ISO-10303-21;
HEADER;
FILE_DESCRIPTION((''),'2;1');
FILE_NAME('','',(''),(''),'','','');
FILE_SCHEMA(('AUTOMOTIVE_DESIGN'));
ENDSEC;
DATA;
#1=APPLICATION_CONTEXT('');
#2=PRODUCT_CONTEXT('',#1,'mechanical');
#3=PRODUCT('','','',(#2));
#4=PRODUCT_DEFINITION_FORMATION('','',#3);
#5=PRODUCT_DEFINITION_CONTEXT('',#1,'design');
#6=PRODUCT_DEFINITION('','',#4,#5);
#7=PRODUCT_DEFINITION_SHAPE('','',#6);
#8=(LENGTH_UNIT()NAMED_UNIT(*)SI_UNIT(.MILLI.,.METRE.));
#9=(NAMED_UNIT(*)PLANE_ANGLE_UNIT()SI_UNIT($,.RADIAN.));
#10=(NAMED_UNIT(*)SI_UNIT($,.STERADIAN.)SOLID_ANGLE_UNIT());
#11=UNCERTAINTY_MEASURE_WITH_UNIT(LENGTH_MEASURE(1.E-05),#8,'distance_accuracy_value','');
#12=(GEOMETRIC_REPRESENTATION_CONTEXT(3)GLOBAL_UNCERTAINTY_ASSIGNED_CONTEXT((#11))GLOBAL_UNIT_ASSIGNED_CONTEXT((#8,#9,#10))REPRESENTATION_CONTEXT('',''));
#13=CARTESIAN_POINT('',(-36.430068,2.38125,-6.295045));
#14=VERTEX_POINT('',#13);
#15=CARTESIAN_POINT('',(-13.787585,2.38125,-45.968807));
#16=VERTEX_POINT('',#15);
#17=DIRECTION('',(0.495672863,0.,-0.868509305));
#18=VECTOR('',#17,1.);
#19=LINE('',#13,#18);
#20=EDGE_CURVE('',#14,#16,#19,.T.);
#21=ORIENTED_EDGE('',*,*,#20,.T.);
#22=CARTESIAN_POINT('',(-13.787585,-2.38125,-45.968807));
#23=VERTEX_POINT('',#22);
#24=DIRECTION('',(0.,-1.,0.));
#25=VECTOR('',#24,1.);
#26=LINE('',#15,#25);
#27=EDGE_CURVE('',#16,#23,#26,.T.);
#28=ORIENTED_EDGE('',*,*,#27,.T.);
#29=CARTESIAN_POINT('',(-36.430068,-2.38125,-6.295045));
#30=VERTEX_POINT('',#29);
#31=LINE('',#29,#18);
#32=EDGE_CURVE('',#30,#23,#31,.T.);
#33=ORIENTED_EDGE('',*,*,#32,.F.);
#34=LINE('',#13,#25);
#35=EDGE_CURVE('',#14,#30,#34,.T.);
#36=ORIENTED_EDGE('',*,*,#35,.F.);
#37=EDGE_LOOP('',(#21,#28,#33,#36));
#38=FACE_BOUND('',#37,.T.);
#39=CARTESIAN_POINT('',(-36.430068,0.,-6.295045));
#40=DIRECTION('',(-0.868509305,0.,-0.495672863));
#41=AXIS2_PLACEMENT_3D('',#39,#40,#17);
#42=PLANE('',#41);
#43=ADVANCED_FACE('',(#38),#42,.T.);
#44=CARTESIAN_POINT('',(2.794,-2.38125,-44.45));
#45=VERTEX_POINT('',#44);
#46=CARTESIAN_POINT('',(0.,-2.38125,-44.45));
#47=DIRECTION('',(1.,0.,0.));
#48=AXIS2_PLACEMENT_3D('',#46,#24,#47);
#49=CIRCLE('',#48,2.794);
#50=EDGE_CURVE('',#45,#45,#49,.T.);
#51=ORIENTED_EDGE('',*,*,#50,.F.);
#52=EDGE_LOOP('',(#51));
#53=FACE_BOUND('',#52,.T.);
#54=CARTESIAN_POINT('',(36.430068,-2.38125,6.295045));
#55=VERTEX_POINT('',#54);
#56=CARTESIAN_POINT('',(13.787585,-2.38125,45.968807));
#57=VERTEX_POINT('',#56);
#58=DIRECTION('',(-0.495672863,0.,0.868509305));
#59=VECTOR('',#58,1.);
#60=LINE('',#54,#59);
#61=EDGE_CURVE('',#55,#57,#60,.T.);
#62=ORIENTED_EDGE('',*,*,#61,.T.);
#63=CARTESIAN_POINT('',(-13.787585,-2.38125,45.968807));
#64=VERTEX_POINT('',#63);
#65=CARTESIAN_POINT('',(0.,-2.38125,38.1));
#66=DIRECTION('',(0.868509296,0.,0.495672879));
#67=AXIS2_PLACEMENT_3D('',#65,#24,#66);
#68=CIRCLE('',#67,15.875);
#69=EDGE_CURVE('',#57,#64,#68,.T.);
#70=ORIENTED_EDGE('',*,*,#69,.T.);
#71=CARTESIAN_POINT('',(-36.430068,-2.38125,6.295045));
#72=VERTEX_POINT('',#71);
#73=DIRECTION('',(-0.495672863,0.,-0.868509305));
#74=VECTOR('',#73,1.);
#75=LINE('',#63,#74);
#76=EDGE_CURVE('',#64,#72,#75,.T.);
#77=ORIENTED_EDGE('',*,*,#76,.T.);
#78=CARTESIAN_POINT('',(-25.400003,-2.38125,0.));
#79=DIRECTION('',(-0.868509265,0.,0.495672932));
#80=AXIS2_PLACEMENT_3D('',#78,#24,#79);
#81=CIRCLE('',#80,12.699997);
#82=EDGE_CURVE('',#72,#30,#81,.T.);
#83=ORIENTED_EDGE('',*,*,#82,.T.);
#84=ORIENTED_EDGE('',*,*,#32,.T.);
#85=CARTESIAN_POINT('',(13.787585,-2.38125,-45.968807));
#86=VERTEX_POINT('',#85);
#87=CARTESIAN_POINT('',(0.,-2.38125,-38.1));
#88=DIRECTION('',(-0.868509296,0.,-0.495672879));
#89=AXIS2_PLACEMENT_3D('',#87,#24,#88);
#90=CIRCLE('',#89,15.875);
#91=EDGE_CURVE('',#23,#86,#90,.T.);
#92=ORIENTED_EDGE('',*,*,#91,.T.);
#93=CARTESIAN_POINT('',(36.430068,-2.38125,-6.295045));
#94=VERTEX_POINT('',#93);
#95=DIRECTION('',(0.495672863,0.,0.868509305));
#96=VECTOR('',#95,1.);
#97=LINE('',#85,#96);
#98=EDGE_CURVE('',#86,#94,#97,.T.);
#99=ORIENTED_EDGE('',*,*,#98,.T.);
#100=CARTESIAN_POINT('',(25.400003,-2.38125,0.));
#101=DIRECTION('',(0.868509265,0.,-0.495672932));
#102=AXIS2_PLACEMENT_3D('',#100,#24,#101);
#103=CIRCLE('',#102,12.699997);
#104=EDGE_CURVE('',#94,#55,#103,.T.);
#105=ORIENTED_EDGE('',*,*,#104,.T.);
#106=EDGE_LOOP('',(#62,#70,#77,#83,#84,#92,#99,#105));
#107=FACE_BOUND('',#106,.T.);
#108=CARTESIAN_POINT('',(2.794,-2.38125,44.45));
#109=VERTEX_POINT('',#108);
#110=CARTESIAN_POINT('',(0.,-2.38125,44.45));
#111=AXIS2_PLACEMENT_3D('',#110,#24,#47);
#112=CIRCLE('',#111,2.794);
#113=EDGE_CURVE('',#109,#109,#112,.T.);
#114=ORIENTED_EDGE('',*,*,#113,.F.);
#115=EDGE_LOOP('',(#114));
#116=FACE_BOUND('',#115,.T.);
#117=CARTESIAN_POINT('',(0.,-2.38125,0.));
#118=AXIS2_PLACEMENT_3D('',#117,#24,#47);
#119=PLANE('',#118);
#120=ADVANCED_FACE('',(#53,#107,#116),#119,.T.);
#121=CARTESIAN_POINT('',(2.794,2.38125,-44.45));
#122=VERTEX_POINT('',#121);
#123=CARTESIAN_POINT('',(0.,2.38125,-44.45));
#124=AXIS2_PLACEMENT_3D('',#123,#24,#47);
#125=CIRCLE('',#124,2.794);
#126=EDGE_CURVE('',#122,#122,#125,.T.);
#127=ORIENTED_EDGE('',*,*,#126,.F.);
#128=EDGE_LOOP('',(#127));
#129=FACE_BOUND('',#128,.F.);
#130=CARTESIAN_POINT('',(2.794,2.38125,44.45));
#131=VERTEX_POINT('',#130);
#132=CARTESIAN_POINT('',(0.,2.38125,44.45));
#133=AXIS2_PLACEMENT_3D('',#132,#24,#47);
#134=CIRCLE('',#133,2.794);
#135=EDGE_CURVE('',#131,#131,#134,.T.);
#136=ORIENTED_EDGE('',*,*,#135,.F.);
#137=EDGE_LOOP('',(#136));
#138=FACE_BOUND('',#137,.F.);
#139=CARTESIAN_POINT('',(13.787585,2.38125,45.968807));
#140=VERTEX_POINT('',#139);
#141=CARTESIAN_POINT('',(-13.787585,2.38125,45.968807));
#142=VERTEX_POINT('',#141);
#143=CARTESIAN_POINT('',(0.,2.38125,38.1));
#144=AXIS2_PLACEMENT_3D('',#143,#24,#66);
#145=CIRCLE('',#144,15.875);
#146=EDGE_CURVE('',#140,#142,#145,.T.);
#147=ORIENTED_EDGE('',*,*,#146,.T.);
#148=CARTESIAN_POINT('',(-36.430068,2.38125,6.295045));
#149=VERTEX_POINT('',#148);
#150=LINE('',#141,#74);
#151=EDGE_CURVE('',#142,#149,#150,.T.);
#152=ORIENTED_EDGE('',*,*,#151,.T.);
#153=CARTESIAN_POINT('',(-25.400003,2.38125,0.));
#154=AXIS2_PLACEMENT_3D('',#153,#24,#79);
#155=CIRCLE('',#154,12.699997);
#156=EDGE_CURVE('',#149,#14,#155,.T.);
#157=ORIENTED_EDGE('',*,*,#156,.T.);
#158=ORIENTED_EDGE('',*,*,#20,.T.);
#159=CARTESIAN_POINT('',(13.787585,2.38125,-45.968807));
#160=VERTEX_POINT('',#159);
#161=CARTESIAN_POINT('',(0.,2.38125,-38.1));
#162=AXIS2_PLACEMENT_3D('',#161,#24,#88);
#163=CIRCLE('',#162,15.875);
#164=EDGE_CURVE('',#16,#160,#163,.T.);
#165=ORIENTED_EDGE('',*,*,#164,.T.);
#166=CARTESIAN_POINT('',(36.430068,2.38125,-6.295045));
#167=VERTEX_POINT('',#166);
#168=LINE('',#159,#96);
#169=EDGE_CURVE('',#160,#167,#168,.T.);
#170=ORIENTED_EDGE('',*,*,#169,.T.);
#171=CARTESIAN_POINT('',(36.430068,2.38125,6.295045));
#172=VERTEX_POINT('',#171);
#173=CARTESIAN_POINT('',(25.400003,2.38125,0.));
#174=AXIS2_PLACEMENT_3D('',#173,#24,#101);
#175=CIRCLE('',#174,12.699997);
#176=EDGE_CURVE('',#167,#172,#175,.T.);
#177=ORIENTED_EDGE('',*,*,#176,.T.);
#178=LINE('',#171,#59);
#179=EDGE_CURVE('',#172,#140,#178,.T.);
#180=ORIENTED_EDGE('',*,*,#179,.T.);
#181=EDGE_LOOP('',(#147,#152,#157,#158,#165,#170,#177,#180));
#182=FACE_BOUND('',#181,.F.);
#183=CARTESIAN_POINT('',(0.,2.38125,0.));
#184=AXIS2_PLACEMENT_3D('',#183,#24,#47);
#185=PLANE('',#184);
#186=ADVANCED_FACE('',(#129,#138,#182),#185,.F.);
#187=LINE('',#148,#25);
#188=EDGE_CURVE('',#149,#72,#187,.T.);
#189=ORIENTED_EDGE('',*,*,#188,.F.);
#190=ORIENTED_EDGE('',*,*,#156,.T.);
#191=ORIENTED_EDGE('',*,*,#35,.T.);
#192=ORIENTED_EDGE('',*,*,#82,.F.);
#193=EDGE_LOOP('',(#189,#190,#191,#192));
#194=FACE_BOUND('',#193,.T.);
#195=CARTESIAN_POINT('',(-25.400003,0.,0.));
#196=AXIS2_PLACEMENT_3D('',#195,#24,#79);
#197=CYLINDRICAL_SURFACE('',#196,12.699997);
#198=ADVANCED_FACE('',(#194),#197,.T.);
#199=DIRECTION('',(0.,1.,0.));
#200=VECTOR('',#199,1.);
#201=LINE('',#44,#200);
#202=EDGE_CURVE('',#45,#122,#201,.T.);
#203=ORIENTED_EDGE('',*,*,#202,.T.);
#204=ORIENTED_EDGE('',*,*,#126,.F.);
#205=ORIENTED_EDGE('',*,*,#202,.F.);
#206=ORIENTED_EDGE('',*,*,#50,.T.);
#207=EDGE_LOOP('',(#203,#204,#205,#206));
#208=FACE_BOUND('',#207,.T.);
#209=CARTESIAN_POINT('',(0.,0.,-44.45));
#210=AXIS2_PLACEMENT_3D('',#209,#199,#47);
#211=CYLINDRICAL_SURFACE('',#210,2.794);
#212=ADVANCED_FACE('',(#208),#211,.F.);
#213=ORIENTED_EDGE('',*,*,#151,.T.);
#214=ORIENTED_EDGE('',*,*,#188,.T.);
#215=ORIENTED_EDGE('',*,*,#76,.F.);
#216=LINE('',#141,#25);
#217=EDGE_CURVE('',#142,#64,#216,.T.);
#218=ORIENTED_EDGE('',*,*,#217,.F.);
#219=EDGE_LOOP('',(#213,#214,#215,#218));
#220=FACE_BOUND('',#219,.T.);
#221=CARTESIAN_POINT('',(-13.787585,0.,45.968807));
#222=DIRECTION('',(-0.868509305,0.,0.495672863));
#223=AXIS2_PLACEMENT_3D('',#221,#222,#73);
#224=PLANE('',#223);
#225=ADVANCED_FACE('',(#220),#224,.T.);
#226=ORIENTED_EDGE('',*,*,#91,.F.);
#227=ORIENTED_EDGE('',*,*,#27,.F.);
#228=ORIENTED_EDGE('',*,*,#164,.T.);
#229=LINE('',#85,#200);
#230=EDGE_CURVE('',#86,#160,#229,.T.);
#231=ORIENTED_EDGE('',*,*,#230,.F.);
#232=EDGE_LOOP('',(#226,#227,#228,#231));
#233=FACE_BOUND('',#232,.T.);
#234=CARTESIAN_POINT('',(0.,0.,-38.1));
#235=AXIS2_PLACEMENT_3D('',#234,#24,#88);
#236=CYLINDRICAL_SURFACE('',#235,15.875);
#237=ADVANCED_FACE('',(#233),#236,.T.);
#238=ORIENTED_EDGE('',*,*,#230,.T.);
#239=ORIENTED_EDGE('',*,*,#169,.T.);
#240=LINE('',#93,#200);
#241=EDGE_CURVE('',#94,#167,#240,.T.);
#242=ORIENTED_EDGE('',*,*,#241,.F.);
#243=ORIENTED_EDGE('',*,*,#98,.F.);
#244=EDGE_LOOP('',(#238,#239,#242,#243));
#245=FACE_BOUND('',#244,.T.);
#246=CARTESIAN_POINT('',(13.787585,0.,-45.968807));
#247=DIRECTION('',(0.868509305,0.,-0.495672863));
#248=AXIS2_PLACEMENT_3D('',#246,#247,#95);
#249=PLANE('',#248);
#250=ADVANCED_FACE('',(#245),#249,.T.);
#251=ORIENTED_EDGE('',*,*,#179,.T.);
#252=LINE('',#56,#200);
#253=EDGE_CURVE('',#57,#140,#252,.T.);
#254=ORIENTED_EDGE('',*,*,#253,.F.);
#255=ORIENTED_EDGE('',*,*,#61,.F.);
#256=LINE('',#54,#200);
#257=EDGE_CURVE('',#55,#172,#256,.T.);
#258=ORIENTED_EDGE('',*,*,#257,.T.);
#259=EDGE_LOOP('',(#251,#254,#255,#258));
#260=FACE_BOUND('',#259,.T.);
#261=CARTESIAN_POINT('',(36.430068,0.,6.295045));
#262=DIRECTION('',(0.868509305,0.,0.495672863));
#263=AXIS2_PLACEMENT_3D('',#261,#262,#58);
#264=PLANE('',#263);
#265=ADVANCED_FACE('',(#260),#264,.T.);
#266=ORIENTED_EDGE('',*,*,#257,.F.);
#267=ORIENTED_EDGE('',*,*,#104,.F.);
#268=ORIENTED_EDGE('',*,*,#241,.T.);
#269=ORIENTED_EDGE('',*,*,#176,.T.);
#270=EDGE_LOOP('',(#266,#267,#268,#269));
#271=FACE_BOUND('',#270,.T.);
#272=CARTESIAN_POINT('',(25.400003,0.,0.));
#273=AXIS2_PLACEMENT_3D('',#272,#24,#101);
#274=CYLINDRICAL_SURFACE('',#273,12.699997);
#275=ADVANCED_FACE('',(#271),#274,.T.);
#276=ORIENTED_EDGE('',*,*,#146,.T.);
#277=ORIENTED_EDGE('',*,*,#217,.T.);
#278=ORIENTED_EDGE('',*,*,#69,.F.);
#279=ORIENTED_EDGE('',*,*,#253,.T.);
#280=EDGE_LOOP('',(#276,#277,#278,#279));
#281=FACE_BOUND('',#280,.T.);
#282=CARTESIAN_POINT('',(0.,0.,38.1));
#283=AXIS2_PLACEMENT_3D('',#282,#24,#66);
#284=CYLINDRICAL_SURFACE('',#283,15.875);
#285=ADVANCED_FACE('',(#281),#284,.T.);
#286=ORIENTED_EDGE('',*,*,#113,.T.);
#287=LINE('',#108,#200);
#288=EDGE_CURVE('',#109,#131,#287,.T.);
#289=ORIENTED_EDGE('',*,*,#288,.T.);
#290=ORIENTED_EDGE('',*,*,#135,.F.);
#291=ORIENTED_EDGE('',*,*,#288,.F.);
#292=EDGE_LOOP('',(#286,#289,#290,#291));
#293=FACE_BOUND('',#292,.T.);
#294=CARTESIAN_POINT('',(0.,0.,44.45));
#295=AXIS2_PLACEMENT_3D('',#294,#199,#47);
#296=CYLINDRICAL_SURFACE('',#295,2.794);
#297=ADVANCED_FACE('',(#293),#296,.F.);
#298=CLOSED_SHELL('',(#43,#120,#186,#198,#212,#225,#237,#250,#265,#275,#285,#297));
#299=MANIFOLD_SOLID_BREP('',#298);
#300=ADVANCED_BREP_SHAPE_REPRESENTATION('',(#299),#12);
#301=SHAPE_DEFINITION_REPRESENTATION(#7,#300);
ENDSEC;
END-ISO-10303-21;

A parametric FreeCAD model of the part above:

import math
import FreeCAD as App
import Part
import Sketcher
from FreeCAD import Vector
Q = App.Units.Quantity

doc = App.newDocument("Part")
body = doc.addObject("PartDesign::Body", "Body")

# Sketch on XZ plane
sketch1 = body.newObject("Sketcher::SketchObject", "Sketch")
sketch1.AttachmentSupport = (doc.getObject("XZ_Plane"), [""])
sketch1.MapMode = "FlatFace"
sketch1.addGeometry([
    Part.ArcOfCircle(Part.Circle(Vector(0, 38.1, 0), Vector(0, 0, 1), 15.9), math.radians(30), math.radians(150)),  # 0
    Part.LineSegment(Vector(-13.8, 46, 0), Vector(-36.4, 6.3, 0)),  # 1
    Part.ArcOfCircle(Part.Circle(Vector(-25.4, 0, 0), Vector(0, 0, 1), 12.7), math.radians(150), math.radians(210)),  # 2
    Part.LineSegment(Vector(-36.4, -6.3, 0), Vector(-13.8, -46, 0)),  # 3
    Part.ArcOfCircle(Part.Circle(Vector(0, -38.1, 0), Vector(0, 0, 1), 15.9), math.radians(-150), math.radians(-30)),  # 4
    Part.LineSegment(Vector(13.8, -46, 0), Vector(36.4, -6.3, 0)),  # 5
    Part.ArcOfCircle(Part.Circle(Vector(25.4, 0, 0), Vector(0, 0, 1), 12.7), math.radians(-30), math.radians(30)),  # 6
    Part.LineSegment(Vector(36.4, 6.3, 0), Vector(13.8, 46, 0)),  # 7
    Part.Circle(Vector(0, -44.5, 0), Vector(0, 0, 1), 2.8),  # 8
    Part.Circle(Vector(0, 44.5, 0), Vector(0, 0, 1), 2.8),  # 9
], False)
sketch1.addConstraint([
    Sketcher.Constraint("Tangent", 0, 2, 1, 1),
    Sketcher.Constraint("Tangent", 1, 2, 2, 1),
    Sketcher.Constraint("Tangent", 2, 2, 3, 1),
    Sketcher.Constraint("Tangent", 3, 2, 4, 1),
    Sketcher.Constraint("Tangent", 4, 2, 5, 1),
    Sketcher.Constraint("Tangent", 5, 2, 6, 1),
    Sketcher.Constraint("Tangent", 6, 2, 7, 1),
    Sketcher.Constraint("Tangent", 7, 2, 0, 1),
    Sketcher.Constraint("Equal", 0, 4),
    Sketcher.Constraint("Equal", 2, 6),
    Sketcher.Constraint("Equal", 8, 9),
    Sketcher.Constraint("Symmetric", 0, 3, 4, 3, -1, 1),
    Sketcher.Constraint("Symmetric", 2, 3, 6, 3, -1, 1),
    Sketcher.Constraint("Symmetric", 8, 3, 9, 3, -1, 1),
    Sketcher.Constraint("Symmetric", 3, 2, 4, 2, -2),
    Sketcher.Constraint("PointOnObject", 8, 3, -2),
    Sketcher.Constraint("Radius", 2, Q("0.4999999 in")),
    Sketcher.Constraint("Diameter", 8, Q("0.22 in")),
    Sketcher.Constraint("DistanceX", 2, 3, -1, 1, Q("1.0000001 in")),
    Sketcher.Constraint("Radius", 0, Q("0.625 in")),
    Sketcher.Constraint("DistanceY", 4, 3, 0, 3, Q("3 in")),
    Sketcher.Constraint("DistanceY", 8, 3, 9, 3, Q("3.5 in")),
])
pad1 = body.newObject("PartDesign::Pad", "Pad")
pad1.Profile = sketch1
pad1.Length = Q("0.1875 in")
pad1.Midplane = True

doc.recompute()
